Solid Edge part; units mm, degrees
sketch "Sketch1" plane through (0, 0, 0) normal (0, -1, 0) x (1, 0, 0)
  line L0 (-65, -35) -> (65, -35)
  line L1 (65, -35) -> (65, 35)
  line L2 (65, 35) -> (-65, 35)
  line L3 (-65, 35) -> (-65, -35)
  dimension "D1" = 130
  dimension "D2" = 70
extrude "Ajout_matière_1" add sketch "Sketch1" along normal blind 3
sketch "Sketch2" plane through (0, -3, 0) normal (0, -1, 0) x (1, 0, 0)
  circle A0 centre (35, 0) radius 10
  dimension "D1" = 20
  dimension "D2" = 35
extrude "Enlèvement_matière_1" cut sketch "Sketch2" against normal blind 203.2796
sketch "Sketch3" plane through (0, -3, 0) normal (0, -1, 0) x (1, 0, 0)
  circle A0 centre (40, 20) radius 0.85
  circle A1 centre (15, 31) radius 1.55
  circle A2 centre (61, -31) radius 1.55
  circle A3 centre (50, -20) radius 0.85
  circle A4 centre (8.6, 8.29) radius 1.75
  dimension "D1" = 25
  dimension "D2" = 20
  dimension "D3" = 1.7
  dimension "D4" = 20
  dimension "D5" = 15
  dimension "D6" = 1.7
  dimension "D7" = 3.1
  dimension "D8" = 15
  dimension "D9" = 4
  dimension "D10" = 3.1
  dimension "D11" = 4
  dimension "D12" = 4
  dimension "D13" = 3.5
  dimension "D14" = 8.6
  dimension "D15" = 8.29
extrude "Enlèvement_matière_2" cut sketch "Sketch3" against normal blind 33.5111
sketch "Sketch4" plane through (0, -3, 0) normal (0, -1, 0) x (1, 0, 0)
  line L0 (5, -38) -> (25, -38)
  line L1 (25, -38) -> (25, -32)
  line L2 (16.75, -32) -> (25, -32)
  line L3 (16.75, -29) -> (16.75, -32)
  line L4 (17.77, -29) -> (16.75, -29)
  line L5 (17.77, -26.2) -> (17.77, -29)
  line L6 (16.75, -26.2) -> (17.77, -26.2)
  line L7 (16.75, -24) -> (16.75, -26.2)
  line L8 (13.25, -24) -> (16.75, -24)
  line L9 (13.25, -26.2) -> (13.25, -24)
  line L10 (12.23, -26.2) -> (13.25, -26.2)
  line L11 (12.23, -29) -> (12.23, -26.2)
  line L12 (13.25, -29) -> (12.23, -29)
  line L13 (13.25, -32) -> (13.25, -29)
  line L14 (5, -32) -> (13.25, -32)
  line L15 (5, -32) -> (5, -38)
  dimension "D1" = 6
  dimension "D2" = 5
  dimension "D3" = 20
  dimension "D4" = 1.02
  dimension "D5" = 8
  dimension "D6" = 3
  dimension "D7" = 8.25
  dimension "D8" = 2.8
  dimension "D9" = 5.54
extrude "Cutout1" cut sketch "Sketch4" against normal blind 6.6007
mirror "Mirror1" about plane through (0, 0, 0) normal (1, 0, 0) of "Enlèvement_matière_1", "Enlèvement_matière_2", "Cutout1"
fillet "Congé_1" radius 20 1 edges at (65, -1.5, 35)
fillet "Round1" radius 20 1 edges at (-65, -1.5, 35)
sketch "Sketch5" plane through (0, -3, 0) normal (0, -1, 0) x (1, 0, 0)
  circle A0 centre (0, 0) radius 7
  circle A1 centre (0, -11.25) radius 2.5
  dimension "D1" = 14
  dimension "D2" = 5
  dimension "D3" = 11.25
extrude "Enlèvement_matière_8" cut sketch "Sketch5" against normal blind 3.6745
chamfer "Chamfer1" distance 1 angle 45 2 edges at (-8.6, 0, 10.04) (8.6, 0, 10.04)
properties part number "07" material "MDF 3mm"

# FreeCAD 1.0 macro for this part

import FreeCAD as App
import Part
import Sketcher

V = App.Vector


def edges_at(feature, points):
    """Names of the edges that pass closest to the given points."""
    edges = feature.Shape.Edges
    near = lambda p: min(range(len(edges)), key=lambda i: edges[i].distToShape(Part.Vertex(*p))[0])
    return sorted({f"Edge{near(p) + 1}" for p in points})


def add_polygon(sketch, points):
    """Adds a closed chain of lines whose ends are joined by coincident constraints."""
    first, n = sketch.GeometryCount, len(points)
    for a, b in zip(points, points[1:] + points[:1]):
        sketch.addGeometry(Part.LineSegment(App.Vector(*a, 0), App.Vector(*b, 0)), False)
    for i in range(n):
        sketch.addConstraint(Sketcher.Constraint("Coincident", first + i, 2, first + (i + 1) % n, 1))

doc = App.newDocument("Part")
body = doc.addObject("PartDesign::Body", "Body")

sketch1 = doc.addObject("Sketcher::SketchObject", "Sketch")
body.addObject(sketch1)
sketch1.AttachmentSupport = (doc.XZ_Plane, [""])
sketch1.MapMode = "FlatFace"
add_polygon(sketch1, [(-65, 35), (-65, -35), (65, -35), (65, 35)])
sketch1.addConstraint(Sketcher.Constraint("Vertical", 0))
sketch1.addConstraint(Sketcher.Constraint("Horizontal", 1))
sketch1.addConstraint(Sketcher.Constraint("Vertical", 2))
sketch1.addConstraint(Sketcher.Constraint("Horizontal", 3))
sketch1.addConstraint(Sketcher.Constraint("Symmetric", 0, 2, 2, 2, -1, 1))
sketch1.addConstraint(Sketcher.Constraint("DistanceX", 0, 2, -1, 1, 65.0))
sketch1.addConstraint(Sketcher.Constraint("DistanceY", 0, 2, 0, 1, 70.0))
pad1 = doc.addObject("PartDesign::Pad", "Pad")
body.addObject(pad1)
pad1.Profile = sketch1
pad1.Length = 3

sketch2 = doc.addObject("Sketcher::SketchObject", "Sketch001")
body.addObject(sketch2)
sketch2.AttachmentSupport = (doc.XZ_Plane, [""])
sketch2.MapMode = "FlatFace"
sketch2.AttachmentOffset = App.Placement(V(0, 0, 3), App.Rotation())
sketch2.addGeometry(Part.Circle(V(35, 0, 0), V(0, 0, 1), 10), False)
sketch2.addConstraint(Sketcher.Constraint("PointOnObject", 0, 3, -1))
sketch2.addConstraint(Sketcher.Constraint("Diameter", 0, 20.0))
sketch2.addConstraint(Sketcher.Constraint("DistanceX", -1, 1, 0, 3, 35.0))
pocket1 = doc.addObject("PartDesign::Pocket", "Pocket")
body.addObject(pocket1)
pocket1.Profile = sketch2
pocket1.Length = 203.2796

sketch3 = doc.addObject("Sketcher::SketchObject", "Sketch002")
body.addObject(sketch3)
sketch3.AttachmentSupport = (doc.XZ_Plane, [""])
sketch3.MapMode = "FlatFace"
sketch3.AttachmentOffset = App.Placement(V(0, 0, 3), App.Rotation())
sketch3.addGeometry(Part.Circle(V(40, 20, 0), V(0, 0, 1), 0.85), False)
sketch3.addGeometry(Part.Circle(V(15, 31, 0), V(0, 0, 1), 1.55), False)
sketch3.addGeometry(Part.Circle(V(61, -31, 0), V(0, 0, 1), 1.55), False)
sketch3.addGeometry(Part.Circle(V(50, -20, 0), V(0, 0, 1), 0.85), False)
sketch3.addGeometry(Part.Circle(V(8.6, 8.29, 0), V(0, 0, 1), 1.75), False)
sketch3.addConstraint(Sketcher.Constraint("Equal", 1, 2))
sketch3.addConstraint(Sketcher.Constraint("Equal", 0, 3))
sketch3.addConstraint(Sketcher.Constraint("DistanceX", -1, 1, 0, 3, 40.0))
sketch3.addConstraint(Sketcher.Constraint("DistanceX", -1, 1, 3, 3, 50.0))
sketch3.addConstraint(Sketcher.Constraint("DistanceY", 3, 3, 0, 3, 40.0))
sketch3.addConstraint(Sketcher.Constraint("Diameter", 0, 1.7))
sketch3.addConstraint(Sketcher.Constraint("Diameter", 1, 3.1))
sketch3.addConstraint(Sketcher.Constraint("Diameter", 4, 3.5))
sketch3.addConstraint(Sketcher.Constraint("DistanceY", -1, 1, 0, 3, 20.0))
sketch3.addConstraint(Sketcher.Constraint("DistanceX", -1, 1, 1, 3, 15.0))
sketch3.addConstraint(Sketcher.Constraint("DistanceY", -1, 1, 1, 3, 31.0))
sketch3.addConstraint(Sketcher.Constraint("DistanceX", -1, 1, 2, 3, 61.0))
sketch3.addConstraint(Sketcher.Constraint("DistanceY", 2, 3, -1, 1, 31.0))
sketch3.addConstraint(Sketcher.Constraint("DistanceX", -1, 1, 4, 3, 8.6))
sketch3.addConstraint(Sketcher.Constraint("DistanceY", -1, 1, 4, 3, 8.29))
pocket2 = doc.addObject("PartDesign::Pocket", "Pocket001")
body.addObject(pocket2)
pocket2.Profile = sketch3
pocket2.Length = 33.5111

sketch4 = doc.addObject("Sketcher::SketchObject", "Sketch003")
body.addObject(sketch4)
sketch4.AttachmentSupport = (doc.XZ_Plane, [""])
sketch4.MapMode = "FlatFace"
sketch4.AttachmentOffset = App.Placement(V(0, 0, 3), App.Rotation())
add_polygon(sketch4, [(5, -32), (5, -38), (25, -38), (25, -32), (16.75, -32), (16.75, -29), (17.77, -29), (17.77, -26.2), (16.75, -26.2), (16.75, -24), (13.25, -24), (13.25, -26.2), (12.23, -26.2), (12.23, -29), (13.25, -29), (13.25, -32)])
sketch4.addConstraint(Sketcher.Constraint("Vertical", 0))
sketch4.addConstraint(Sketcher.Constraint("Horizontal", 1))
sketch4.addConstraint(Sketcher.Constraint("Vertical", 2))
sketch4.addConstraint(Sketcher.Constraint("Horizontal", 3))
sketch4.addConstraint(Sketcher.Constraint("Vertical", 4))
sketch4.addConstraint(Sketcher.Constraint("Horizontal", 5))
sketch4.addConstraint(Sketcher.Constraint("Vertical", 6))
sketch4.addConstraint(Sketcher.Constraint("Horizontal", 7))
sketch4.addConstraint(Sketcher.Constraint("Vertical", 8))
sketch4.addConstraint(Sketcher.Constraint("Horizontal", 9))
sketch4.addConstraint(Sketcher.Constraint("Vertical", 10))
sketch4.addConstraint(Sketcher.Constraint("Horizontal", 11))
sketch4.addConstraint(Sketcher.Constraint("Vertical", 12))
sketch4.addConstraint(Sketcher.Constraint("Horizontal", 13))
sketch4.addConstraint(Sketcher.Constraint("Vertical", 14))
sketch4.addConstraint(Sketcher.Constraint("Horizontal", 15))
sketch4.addConstraint(Sketcher.Constraint("Horizontal", 7, 2, 10, 2))
sketch4.addConstraint(Sketcher.Constraint("Horizontal", 5, 2, 12, 2))
sketch4.addConstraint(Sketcher.Constraint("Horizontal", 3, 2, 14, 2))
sketch4.addConstraint(Sketcher.Constraint("Vertical", 4, 2, 7, 2))
sketch4.addConstraint(Sketcher.Constraint("Vertical", 10, 2, 13, 2))
sketch4.addConstraint(Sketcher.Constraint("Equal", 7, 11))
sketch4.addConstraint(Sketcher.Constraint("Equal", 3, 15))
sketch4.addConstraint(Sketcher.Constraint("DistanceX", -1, 1, 0, 2, 5.0))
sketch4.addConstraint(Sketcher.Constraint("DistanceY", 4, 2, 8, 2, 5.0))
sketch4.addConstraint(Sketcher.Constraint("DistanceX", 1, 1, 1, 2, 20.0))
sketch4.addConstraint(Sketcher.Constraint("DistanceY", 0, 2, 0, 1, 6.0))
sketch4.addConstraint(Sketcher.Constraint("DistanceY", 4, 1, 4, 2, 3.0))
sketch4.addConstraint(Sketcher.Constraint("DistanceX", -1, 1, 9, 2, 13.25))
sketch4.addConstraint(Sketcher.Constraint("DistanceX", -1, 1, 11, 2, 12.23))
sketch4.addConstraint(Sketcher.Constraint("DistanceY", 6, 1, 6, 2, 2.8))
sketch4.addConstraint(Sketcher.Constraint("DistanceY", 0, 2, -1, 1, 38.0))
pocket3 = doc.addObject("PartDesign::Pocket", "Pocket002")
body.addObject(pocket3)
pocket3.Profile = sketch4
pocket3.Length = 6.6007
doc.recompute()

mirrored = doc.addObject("PartDesign::Mirrored", "Mirrored")
body.addObject(mirrored)
mirrored.Originals = [pocket1, pocket2, pocket3]
mirrored.MirrorPlane = (doc.YZ_Plane, [""])
body.Tip = mirrored
doc.recompute()

fillet = doc.addObject("PartDesign::Fillet", "Fillet")
body.addObject(fillet)
fillet.Base = (mirrored, edges_at(mirrored, [(65, -1.5, 35)]))
fillet.Radius = 20
doc.recompute()

fillet2 = doc.addObject("PartDesign::Fillet", "Fillet001")
body.addObject(fillet2)
fillet2.Base = (fillet, edges_at(fillet, [(-65, -1.5, 35)]))
fillet2.Radius = 20

sketch5 = doc.addObject("Sketcher::SketchObject", "Sketch004")
body.addObject(sketch5)
sketch5.AttachmentSupport = (doc.XZ_Plane, [""])
sketch5.MapMode = "FlatFace"
sketch5.AttachmentOffset = App.Placement(V(0, 0, 3), App.Rotation())
sketch5.addGeometry(Part.Circle(V(0, 0, 0), V(0, 0, 1), 7), False)
sketch5.addGeometry(Part.Circle(V(0, -11.25, 0), V(0, 0, 1), 2.5), False)
sketch5.addConstraint(Sketcher.Constraint("Coincident", 0, 3, -1, 1))
sketch5.addConstraint(Sketcher.Constraint("PointOnObject", 1, 3, -2))
sketch5.addConstraint(Sketcher.Constraint("Diameter", 0, 14.0))
sketch5.addConstraint(Sketcher.Constraint("Diameter", 1, 5.0))
sketch5.addConstraint(Sketcher.Constraint("DistanceY", 1, 3, -1, 1, 11.25))
pocket4 = doc.addObject("PartDesign::Pocket", "Pocket003")
body.addObject(pocket4)
pocket4.Profile = sketch5
pocket4.Length = 3.6745
doc.recompute()

chamfer = doc.addObject("PartDesign::Chamfer", "Chamfer")
body.addObject(chamfer)
chamfer.Base = (pocket4, edges_at(pocket4, [(-8.6, 0, 10.04), (8.6, 0, 10.04)]))
chamfer.Size = 1

doc.recompute()
